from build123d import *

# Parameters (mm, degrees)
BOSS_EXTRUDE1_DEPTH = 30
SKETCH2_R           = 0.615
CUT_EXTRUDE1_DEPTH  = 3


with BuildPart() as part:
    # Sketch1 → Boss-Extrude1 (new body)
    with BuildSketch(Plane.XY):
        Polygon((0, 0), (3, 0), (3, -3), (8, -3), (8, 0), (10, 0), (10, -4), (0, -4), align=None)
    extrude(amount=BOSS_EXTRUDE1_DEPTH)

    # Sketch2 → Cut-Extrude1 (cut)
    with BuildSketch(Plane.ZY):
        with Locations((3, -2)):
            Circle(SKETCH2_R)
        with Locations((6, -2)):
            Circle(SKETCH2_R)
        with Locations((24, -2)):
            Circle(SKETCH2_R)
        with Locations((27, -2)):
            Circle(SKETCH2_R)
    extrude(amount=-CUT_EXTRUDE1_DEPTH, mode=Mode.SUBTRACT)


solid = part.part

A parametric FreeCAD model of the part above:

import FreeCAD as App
import Part
import Sketcher
from FreeCAD import Vector
Q = App.Units.Quantity


def add_polygon(sketch, points):
    """Adds a closed chain of lines whose ends are joined by coincident constraints."""
    first, n = sketch.GeometryCount, len(points)
    for a, b in zip(points, points[1:] + points[:1]):
        sketch.addGeometry(Part.LineSegment(App.Vector(*a, 0), App.Vector(*b, 0)), False)
    for i in range(n):
        sketch.addConstraint(Sketcher.Constraint("Coincident", first + i, 2, first + (i + 1) % n, 1))

doc = App.newDocument("Part")
body = doc.addObject("PartDesign::Body", "Body")

sketch1 = doc.addObject("Sketcher::SketchObject", "Sketch")
body.addObject(sketch1)
sketch1.AttachmentSupport = (doc.XY_Plane, [""])
sketch1.MapMode = "FlatFace"
add_polygon(sketch1, [(3, 0), (0, 0), (0, -4), (10, -4), (10, 0), (8, 0), (8, -3), (3, -3)])
sketch1.addConstraint([
    Sketcher.Constraint("Horizontal", 0),
    Sketcher.Constraint("Vertical", 1),
    Sketcher.Constraint("Horizontal", 2),
    Sketcher.Constraint("Vertical", 3),
    Sketcher.Constraint("Horizontal", 4),
    Sketcher.Constraint("Vertical", 5),
    Sketcher.Constraint("Horizontal", 6),
    Sketcher.Constraint("Vertical", 7),
    Sketcher.Constraint("Coincident", 0, 2, -1, 1),
    Sketcher.Constraint("PointOnObject", 3, 2, -1),
    Sketcher.Constraint("Equal", 0, 5),
    Sketcher.Constraint("DistanceX", 0, 2, 0, 1, Q("3 mm")),
    Sketcher.Constraint("DistanceX", 2, 1, 2, 2, Q("10 mm")),
    Sketcher.Constraint("DistanceX", 4, 2, 4, 1, Q("2 mm")),
    Sketcher.Constraint("DistanceY", 1, 2, 1, 1, Q("4 mm")),
])
pad1 = doc.addObject("PartDesign::Pad", "Pad")
body.addObject(pad1)
pad1.Profile = sketch1
pad1.Length = 30

sketch2 = doc.addObject("Sketcher::SketchObject", "Sketch001")
body.addObject(sketch2)
sketch2.AttachmentSupport = (doc.YZ_Plane, [""])
sketch2.MapMode = "FlatFace"
sketch2.addGeometry([
    Part.Circle(Vector(-2, 3, 0), Vector(0, 0, 1), 0.6),
    Part.Circle(Vector(-2, 6, 0), Vector(0, 0, 1), 0.6),
    Part.Circle(Vector(-2, 24, 0), Vector(0, 0, 1), 0.6),
    Part.Circle(Vector(-2, 27, 0), Vector(0, 0, 1), 0.6),
], False)
sketch2.addConstraint([
    Sketcher.Constraint("Equal", 0, 1),
    Sketcher.Constraint("Equal", 1, 2),
    Sketcher.Constraint("Equal", 2, 3),
    Sketcher.Constraint("Vertical", 0, 3, 1, 3),
    Sketcher.Constraint("Vertical", 1, 3, 2, 3),
    Sketcher.Constraint("Vertical", 2, 3, 3, 3),
    Sketcher.Constraint("Diameter", 0, Q("1.23 mm")),
    Sketcher.Constraint("DistanceX", 0, 3, -1, 1, Q("2 mm")),
    Sketcher.Constraint("DistanceY", -1, 1, 0, 3, Q("3 mm")),
    Sketcher.Constraint("DistanceY", -1, 1, 1, 3, Q("6 mm")),
    Sketcher.Constraint("DistanceY", -1, 1, 2, 3, Q("24 mm")),
    Sketcher.Constraint("DistanceY", -1, 1, 3, 3, Q("27 mm")),
])
pocket1 = doc.addObject("PartDesign::Pocket", "Pocket")
body.addObject(pocket1)
pocket1.Profile = sketch2
pocket1.Length = 3
pocket1.Reversed = True

doc.recompute()
